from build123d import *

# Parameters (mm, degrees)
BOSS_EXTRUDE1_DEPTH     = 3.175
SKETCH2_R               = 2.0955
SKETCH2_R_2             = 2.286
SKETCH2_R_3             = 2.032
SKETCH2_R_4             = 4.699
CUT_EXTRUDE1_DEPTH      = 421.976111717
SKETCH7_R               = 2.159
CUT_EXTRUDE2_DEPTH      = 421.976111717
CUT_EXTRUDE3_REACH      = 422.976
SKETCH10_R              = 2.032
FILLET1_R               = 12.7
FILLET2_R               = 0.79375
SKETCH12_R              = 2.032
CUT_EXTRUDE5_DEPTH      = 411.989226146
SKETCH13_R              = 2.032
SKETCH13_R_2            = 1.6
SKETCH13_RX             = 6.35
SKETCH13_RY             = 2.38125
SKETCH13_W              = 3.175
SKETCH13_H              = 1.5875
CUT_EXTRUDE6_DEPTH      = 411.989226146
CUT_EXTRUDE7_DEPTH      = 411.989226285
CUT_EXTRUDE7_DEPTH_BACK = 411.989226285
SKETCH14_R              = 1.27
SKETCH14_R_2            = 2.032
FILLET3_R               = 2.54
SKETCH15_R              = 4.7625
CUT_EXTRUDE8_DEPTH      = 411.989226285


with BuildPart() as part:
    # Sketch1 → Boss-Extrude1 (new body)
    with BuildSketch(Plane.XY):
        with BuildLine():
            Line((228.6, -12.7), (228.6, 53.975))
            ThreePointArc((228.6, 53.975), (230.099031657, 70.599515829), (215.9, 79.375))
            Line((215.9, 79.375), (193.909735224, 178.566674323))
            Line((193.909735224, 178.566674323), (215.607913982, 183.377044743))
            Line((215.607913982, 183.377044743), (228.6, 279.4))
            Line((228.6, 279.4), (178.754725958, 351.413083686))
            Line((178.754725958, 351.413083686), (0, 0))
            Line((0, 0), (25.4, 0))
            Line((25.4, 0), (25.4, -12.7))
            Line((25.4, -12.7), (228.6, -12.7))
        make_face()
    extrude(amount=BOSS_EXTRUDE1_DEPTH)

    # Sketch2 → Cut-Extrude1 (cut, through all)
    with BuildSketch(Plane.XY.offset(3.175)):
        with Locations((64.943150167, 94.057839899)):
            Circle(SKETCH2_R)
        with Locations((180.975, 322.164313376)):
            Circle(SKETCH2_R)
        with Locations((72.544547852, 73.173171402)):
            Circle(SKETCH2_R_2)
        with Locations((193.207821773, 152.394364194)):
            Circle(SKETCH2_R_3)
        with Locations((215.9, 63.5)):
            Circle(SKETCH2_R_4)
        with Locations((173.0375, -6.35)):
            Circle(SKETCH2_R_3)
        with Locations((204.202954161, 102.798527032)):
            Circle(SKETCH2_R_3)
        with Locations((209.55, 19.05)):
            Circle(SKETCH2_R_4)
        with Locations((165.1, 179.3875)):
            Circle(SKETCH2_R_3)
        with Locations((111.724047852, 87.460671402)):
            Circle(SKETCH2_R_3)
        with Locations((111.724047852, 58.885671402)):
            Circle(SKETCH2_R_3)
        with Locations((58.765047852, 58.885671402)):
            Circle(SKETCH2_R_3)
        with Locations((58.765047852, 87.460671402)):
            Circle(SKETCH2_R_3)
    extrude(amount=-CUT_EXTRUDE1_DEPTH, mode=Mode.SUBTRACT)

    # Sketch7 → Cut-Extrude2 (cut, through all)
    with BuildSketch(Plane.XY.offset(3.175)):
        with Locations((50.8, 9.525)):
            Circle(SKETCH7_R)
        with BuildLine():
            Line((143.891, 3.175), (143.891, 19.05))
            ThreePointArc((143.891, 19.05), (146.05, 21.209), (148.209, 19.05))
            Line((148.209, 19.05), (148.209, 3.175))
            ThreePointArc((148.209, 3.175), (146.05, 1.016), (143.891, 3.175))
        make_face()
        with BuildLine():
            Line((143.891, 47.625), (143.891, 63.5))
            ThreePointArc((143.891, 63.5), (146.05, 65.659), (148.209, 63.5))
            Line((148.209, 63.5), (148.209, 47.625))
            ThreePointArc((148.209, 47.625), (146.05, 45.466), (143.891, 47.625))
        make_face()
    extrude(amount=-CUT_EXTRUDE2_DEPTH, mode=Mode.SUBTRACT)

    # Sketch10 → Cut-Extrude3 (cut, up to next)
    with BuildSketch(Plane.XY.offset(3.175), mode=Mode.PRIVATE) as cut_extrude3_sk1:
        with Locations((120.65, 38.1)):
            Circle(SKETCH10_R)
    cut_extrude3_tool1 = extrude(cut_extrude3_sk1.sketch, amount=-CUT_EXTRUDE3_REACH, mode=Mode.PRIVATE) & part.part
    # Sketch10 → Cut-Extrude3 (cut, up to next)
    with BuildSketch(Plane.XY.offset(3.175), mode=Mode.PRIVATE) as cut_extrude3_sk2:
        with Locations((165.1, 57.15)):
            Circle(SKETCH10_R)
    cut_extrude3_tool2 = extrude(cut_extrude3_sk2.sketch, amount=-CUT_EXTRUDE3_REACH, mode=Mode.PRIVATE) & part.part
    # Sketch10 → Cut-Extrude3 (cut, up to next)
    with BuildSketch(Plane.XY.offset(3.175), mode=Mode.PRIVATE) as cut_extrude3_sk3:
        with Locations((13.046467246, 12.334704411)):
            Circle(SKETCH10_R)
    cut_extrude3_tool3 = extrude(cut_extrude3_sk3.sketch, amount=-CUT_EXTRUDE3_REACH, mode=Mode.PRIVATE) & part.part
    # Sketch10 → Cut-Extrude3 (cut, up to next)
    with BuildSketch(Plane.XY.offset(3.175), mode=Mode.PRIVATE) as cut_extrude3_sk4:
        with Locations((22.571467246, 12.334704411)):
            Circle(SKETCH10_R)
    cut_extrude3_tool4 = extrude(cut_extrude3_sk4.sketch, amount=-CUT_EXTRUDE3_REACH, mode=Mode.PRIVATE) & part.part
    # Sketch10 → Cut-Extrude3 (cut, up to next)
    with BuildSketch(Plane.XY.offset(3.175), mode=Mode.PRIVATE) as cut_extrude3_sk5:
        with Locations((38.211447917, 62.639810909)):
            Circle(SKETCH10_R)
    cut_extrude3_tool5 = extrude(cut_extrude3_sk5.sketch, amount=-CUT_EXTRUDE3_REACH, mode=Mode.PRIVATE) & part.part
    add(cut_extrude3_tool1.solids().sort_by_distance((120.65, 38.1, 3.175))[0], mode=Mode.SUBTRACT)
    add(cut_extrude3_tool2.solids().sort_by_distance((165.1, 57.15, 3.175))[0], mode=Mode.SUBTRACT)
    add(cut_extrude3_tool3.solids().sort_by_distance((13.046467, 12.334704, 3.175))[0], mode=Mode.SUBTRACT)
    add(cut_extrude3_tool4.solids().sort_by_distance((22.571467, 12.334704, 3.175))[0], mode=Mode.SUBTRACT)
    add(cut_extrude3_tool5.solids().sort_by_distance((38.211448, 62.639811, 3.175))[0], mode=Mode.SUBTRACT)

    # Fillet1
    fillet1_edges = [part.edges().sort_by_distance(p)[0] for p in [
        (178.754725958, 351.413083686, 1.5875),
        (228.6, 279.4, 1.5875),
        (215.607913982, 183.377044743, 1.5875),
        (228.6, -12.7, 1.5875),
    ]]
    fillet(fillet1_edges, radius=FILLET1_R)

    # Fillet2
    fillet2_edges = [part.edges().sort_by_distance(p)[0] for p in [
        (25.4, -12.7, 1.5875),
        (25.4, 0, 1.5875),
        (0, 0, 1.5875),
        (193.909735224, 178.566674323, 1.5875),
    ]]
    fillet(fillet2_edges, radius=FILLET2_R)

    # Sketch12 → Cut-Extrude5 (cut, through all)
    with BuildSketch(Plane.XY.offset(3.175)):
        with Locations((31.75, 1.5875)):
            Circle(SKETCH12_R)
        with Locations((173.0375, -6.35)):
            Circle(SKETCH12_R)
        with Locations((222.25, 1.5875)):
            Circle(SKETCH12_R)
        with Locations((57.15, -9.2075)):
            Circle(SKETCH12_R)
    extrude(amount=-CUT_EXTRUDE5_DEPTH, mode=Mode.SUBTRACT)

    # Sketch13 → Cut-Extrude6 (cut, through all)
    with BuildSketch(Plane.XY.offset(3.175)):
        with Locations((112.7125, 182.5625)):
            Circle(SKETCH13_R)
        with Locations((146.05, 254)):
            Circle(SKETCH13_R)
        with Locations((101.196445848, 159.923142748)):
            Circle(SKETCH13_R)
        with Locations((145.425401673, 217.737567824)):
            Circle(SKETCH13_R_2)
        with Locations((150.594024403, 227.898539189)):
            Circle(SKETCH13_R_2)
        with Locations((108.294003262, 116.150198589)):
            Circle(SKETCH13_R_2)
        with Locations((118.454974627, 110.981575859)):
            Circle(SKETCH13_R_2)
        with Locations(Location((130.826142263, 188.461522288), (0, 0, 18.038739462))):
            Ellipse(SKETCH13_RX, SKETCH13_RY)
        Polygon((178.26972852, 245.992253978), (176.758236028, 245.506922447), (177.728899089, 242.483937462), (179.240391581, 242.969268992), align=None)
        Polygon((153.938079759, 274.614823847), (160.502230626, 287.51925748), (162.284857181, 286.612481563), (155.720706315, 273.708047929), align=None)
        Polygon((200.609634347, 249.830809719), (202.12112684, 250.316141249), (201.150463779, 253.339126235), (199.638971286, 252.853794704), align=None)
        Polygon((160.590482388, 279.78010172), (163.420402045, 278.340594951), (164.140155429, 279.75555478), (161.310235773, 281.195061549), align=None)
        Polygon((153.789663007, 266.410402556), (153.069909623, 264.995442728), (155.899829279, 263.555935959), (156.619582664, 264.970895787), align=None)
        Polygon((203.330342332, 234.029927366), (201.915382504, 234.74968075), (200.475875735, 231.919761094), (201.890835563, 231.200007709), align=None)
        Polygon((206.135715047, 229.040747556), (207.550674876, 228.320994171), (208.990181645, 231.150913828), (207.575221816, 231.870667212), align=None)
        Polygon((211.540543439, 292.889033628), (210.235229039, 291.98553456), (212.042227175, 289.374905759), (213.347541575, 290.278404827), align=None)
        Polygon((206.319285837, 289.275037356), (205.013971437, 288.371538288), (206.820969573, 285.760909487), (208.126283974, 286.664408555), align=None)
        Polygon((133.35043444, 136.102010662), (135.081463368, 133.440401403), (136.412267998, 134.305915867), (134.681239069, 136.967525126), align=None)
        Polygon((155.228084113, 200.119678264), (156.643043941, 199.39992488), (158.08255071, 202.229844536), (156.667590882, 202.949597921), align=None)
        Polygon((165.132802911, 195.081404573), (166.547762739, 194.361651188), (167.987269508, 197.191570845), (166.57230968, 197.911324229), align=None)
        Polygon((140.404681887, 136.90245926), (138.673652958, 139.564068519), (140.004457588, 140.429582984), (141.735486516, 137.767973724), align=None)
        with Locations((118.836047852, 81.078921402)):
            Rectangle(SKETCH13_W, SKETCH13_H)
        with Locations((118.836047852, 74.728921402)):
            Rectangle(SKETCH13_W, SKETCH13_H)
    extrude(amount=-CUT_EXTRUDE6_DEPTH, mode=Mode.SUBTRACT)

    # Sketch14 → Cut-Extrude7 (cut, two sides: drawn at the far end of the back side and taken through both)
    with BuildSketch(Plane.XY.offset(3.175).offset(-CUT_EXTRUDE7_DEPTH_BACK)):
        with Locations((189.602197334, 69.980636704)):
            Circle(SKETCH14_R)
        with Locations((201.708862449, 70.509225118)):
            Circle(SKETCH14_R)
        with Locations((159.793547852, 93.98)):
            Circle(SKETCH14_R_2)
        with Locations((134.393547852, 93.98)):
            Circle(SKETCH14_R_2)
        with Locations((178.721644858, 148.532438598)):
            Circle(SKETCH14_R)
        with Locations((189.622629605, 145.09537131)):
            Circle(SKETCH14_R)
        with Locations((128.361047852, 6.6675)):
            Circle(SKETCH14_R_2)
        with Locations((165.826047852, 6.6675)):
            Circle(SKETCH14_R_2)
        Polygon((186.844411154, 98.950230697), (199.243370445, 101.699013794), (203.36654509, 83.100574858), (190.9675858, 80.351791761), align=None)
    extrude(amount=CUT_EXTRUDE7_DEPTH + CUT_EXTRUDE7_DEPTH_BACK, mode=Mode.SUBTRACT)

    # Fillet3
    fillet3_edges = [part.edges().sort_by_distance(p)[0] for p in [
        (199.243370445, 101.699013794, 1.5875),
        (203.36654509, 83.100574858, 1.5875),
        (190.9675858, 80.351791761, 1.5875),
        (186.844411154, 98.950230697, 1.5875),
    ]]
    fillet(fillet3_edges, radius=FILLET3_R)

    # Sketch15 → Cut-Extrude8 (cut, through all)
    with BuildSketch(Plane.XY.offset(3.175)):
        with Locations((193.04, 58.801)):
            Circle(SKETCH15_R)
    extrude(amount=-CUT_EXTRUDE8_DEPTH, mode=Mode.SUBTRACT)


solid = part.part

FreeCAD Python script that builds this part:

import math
import FreeCAD as App
import Part
import Sketcher
from FreeCAD import Vector
Q = App.Units.Quantity


def edges_at(feature, points):
    """Names of the edges that pass closest to the given points."""
    edges = feature.Shape.Edges
    near = lambda p: min(range(len(edges)), key=lambda i: edges[i].distToShape(Part.Vertex(*p))[0])
    return sorted({f"Edge{near(p) + 1}" for p in points})

doc = App.newDocument("Part")
body = doc.addObject("PartDesign::Body", "Body")

sketch1 = doc.addObject("Sketcher::SketchObject", "Sketch")
body.addObject(sketch1)
sketch1.AttachmentSupport = (doc.XY_Plane, [""])
sketch1.MapMode = "FlatFace"
sketch1.addGeometry([
    Part.LineSegment(Vector(228.6, -12.7, 0), Vector(228.6, 53.975, 0)),
    Part.ArcOfCircle(Part.Circle(Vector(215.9, 63.5, 0), Vector(0, 0, 1), 15.875), math.radians(-36.869898), math.radians(90)),
    Part.LineSegment(Vector(215.9, 79.375, 0), Vector(193.909735, 178.566674, 0)),
    Part.LineSegment(Vector(193.909735, 178.566674, 0), Vector(215.607914, 183.377045, 0)),
    Part.LineSegment(Vector(215.607914, 183.377045, 0), Vector(228.6, 279.4, 0)),
    Part.LineSegment(Vector(228.6, 279.4, 0), Vector(178.754726, 351.413084, 0)),
    Part.LineSegment(Vector(178.754726, 351.413084, 0), Vector(0, 0, 0)),
    Part.LineSegment(Vector(0, 0, 0), Vector(25.4, 0, 0)),
    Part.LineSegment(Vector(25.4, 0, 0), Vector(25.4, -12.7, 0)),
    Part.LineSegment(Vector(25.4, -12.7, 0), Vector(228.6, -12.7, 0)),
], False)
sketch1.addConstraint([
    Sketcher.Constraint("Coincident", 0, 2, 1, 1),
    Sketcher.Constraint("Coincident", 1, 2, 2, 1),
    Sketcher.Constraint("Coincident", 2, 2, 3, 1),
    Sketcher.Constraint("Coincident", 3, 2, 4, 1),
    Sketcher.Constraint("Coincident", 4, 2, 5, 1),
    Sketcher.Constraint("Coincident", 5, 2, 6, 1),
    Sketcher.Constraint("Coincident", 6, 2, 7, 1),
    Sketcher.Constraint("Coincident", 7, 2, 8, 1),
    Sketcher.Constraint("Coincident", 8, 2, 9, 1),
    Sketcher.Constraint("Coincident", 9, 2, 0, 1),
    Sketcher.Constraint("Vertical", 0),
    Sketcher.Constraint("Horizontal", 7),
    Sketcher.Constraint("Vertical", 8),
    Sketcher.Constraint("Horizontal", 9),
    Sketcher.Constraint("Coincident", 6, 2, -1, 1),
    Sketcher.Constraint("Perpendicular", 2, 3),
    Sketcher.Constraint("Vertical", 0, 2, 4, 2),
    Sketcher.Constraint("DistanceX", 7, 1, 7, 2, Q("1 in")),
    Sketcher.Constraint("DistanceX", 9, 1, 9, 2, Q("8 in")),
    Sketcher.Constraint("Distance", 2, Q("4 in")),
    Sketcher.Constraint("DistanceY", 8, 2, 8, 1, Q("0.5 in")),
    Sketcher.Constraint("DistanceY", -1, 1, 4, 2, Q("11 in")),
    Sketcher.Constraint("Radius", 1, Q("0.625 in")),
    Sketcher.Constraint("DistanceY", 0, 2, 1, 2, Q("1 in")),
    Sketcher.Constraint("DistanceY", 8, 2, 1, 3, Q("3 in")),
    Sketcher.Constraint("DistanceX", -1, 1, 1, 2, Q("8.5 in")),
    Sketcher.Constraint("Angle", 2, Q("102.5 deg")),
    Sketcher.Constraint("Distance", 3, Q("0.875 in")),
    Sketcher.Constraint("DistanceX", 5, 2, 3, 2, Q("36.853188 mm")),
    Sketcher.Constraint("DistanceY", 3, 2, 5, 2, Q("168.036039 mm")),
])
pad1 = doc.addObject("PartDesign::Pad", "Pad")
body.addObject(pad1)
pad1.Profile = sketch1
pad1.Length = Q("0.125 in")

sketch2 = doc.addObject("Sketcher::SketchObject", "Sketch001")
body.addObject(sketch2)
sketch2.AttachmentSupport = (doc.XY_Plane, [""])
sketch2.MapMode = "FlatFace"
sketch2.AttachmentOffset = App.Placement(Vector(0, 0, 0.125 * 25.4), App.Rotation())
sketch2.addGeometry([
    Part.Circle(Vector(64.94315, 94.05784, 0), Vector(0, 0, 1), 2.0955),
    Part.Circle(Vector(180.975, 322.164313, 0), Vector(0, 0, 1), 2.0955),
    Part.Circle(Vector(72.544548, 73.173171, 0), Vector(0, 0, 1), 2.286),
    Part.Circle(Vector(193.207822, 152.394364, 0), Vector(0, 0, 1), 2.032),
    Part.Circle(Vector(215.9, 63.5, 0), Vector(0, 0, 1), 4.699),
    Part.Circle(Vector(173.0375, -6.35, 0), Vector(0, 0, 1), 2.032),
    Part.Circle(Vector(204.202954, 102.798527, 0), Vector(0, 0, 1), 2.032),
    Part.Circle(Vector(209.55, 19.05, 0), Vector(0, 0, 1), 4.699),
    Part.Circle(Vector(165.1, 179.3875, 0), Vector(0, 0, 1), 2.032),
    Part.Circle(Vector(111.724048, 87.460671, 0), Vector(0, 0, 1), 2.032),
    Part.Circle(Vector(111.724048, 58.885671, 0), Vector(0, 0, 1), 2.032),
    Part.Circle(Vector(58.765048, 58.885671, 0), Vector(0, 0, 1), 2.032),
    Part.Circle(Vector(58.765048, 87.460671, 0), Vector(0, 0, 1), 2.032),
], False)
sketch2.addConstraint([
    Sketcher.Constraint("Equal", 0, 1),
    Sketcher.Constraint("Equal", 3, 5),
    Sketcher.Constraint("Equal", 5, 6),
    Sketcher.Constraint("Equal", 4, 7),
    Sketcher.Constraint("Equal", 6, 8),
    Sketcher.Constraint("Equal", 8, 9),
    Sketcher.Constraint("Equal", 9, 10),
    Sketcher.Constraint("Equal", 10, 11),
    Sketcher.Constraint("Equal", 11, 12),
    Sketcher.Constraint("Horizontal", 10, 3, 11, 3),
    Sketcher.Constraint("Horizontal", 9, 3, 12, 3),
    Sketcher.Constraint("Vertical", 9, 3, 10, 3),
    Sketcher.Constraint("Vertical", 11, 3, 12, 3),
    Sketcher.Constraint("Diameter", 2, Q("0.18 in")),
    Sketcher.Constraint("Diameter", 3, Q("0.16 in")),
    Sketcher.Constraint("Diameter", 4, Q("0.37 in")),
    Sketcher.Constraint("Diameter", 0, Q("0.165 in")),
    Sketcher.Constraint("DistanceY", 5, 3, 7, 3, Q("1 in")),
    Sketcher.Constraint("DistanceX", 8, 3, 4, 3, Q("2 in")),
    Sketcher.Constraint("DistanceX", -1, 1, 4, 3, Q("8.5 in")),
    Sketcher.Constraint("DistanceY", -1, 1, 4, 3, Q("2.5 in")),
    Sketcher.Constraint("DistanceY", 5, 3, -1, 1, Q("0.25 in")),
    Sketcher.Constraint("DistanceX", -1, 1, 7, 3, Q("8.25 in")),
    Sketcher.Constraint("DistanceX", -1, 1, 1, 3, Q("7.125 in")),
    Sketcher.Constraint("DistanceX", -1, 1, 5, 3, Q("6.8125 in")),
    Sketcher.Constraint("DistanceY", -1, 1, 8, 3, Q("7.0625 in")),
    Sketcher.Constraint("DistanceY", 2, 3, 9, 3, Q("0.5625 in")),
    Sketcher.Constraint("DistanceY", 10, 3, 9, 3, Q("1.125 in")),
    Sketcher.Constraint("DistanceX", 11, 3, 10, 3, Q("2.085 in")),
    Sketcher.Constraint("DistanceX", 2, 3, 9, 3, Q("1.5425 in")),
    Sketcher.Constraint("DistanceX", -1, 1, 0, 3, Q("64.94315 mm")),
    Sketcher.Constraint("DistanceY", -1, 1, 0, 3, Q("94.05784 mm")),
    Sketcher.Constraint("DistanceY", -1, 1, 2, 3, Q("73.173171 mm")),
    Sketcher.Constraint("DistanceX", -1, 1, 3, 3, Q("193.207822 mm")),
    Sketcher.Constraint("DistanceY", 2, 3, 1, 3, Q("248.991142 mm")),
    Sketcher.Constraint("DistanceY", 3, 3, 1, 3, Q("169.769949 mm")),
    Sketcher.Constraint("DistanceX", -1, 1, 2, 3, Q("72.544548 mm")),
    Sketcher.Constraint("DistanceX", -1, 1, 6, 3, Q("204.202954 mm")),
    Sketcher.Constraint("DistanceY", -1, 1, 6, 3, Q("102.798527 mm")),
])
pocket1 = doc.addObject("PartDesign::Pocket", "Pocket")
body.addObject(pocket1)
pocket1.Profile = sketch2
pocket1.Type = "ThroughAll"

sketch3 = doc.addObject("Sketcher::SketchObject", "Sketch002")
body.addObject(sketch3)
sketch3.AttachmentSupport = (doc.XY_Plane, [""])
sketch3.MapMode = "FlatFace"
sketch3.AttachmentOffset = App.Placement(Vector(0, 0, 0.125 * 25.4), App.Rotation())
sketch3.addGeometry([
    Part.Circle(Vector(50.8, 9.525, 0), Vector(0, 0, 1), 2.159),
    Part.LineSegment(Vector(143.891, 19.05, 0), Vector(143.891, 3.175, 0)),
    Part.ArcOfCircle(Part.Circle(Vector(146.05, 3.175, 0), Vector(0, 0, 1), 2.159), math.radians(180), math.radians(360)),
    Part.LineSegment(Vector(148.209, 3.175, 0), Vector(148.209, 19.05, 0)),
    Part.ArcOfCircle(Part.Circle(Vector(146.05, 19.05, 0), Vector(0, 0, 1), 2.159), math.radians(0), math.radians(180)),
    Part.LineSegment(Vector(143.891, 63.5, 0), Vector(143.891, 47.625, 0)),
    Part.ArcOfCircle(Part.Circle(Vector(146.05, 47.625, 0), Vector(0, 0, 1), 2.159), math.radians(180), math.radians(360)),
    Part.LineSegment(Vector(148.209, 47.625, 0), Vector(148.209, 63.5, 0)),
    Part.ArcOfCircle(Part.Circle(Vector(146.05, 63.5, 0), Vector(0, 0, 1), 2.159), math.radians(0), math.radians(180)),
], False)
sketch3.addConstraint([
    Sketcher.Constraint("Tangent", 1, 2, 2, 1),
    Sketcher.Constraint("Tangent", 2, 2, 3, 1),
    Sketcher.Constraint("Tangent", 3, 2, 4, 1),
    Sketcher.Constraint("Tangent", 4, 2, 1, 1),
    Sketcher.Constraint("Tangent", 5, 2, 6, 1),
    Sketcher.Constraint("Tangent", 6, 2, 7, 1),
    Sketcher.Constraint("Tangent", 7, 2, 8, 1),
    Sketcher.Constraint("Tangent", 8, 2, 5, 1),
    Sketcher.Constraint("Vertical", 1),
    Sketcher.Constraint("Vertical", 3),
    Sketcher.Constraint("Vertical", 5),
    Sketcher.Constraint("Vertical", 7),
    Sketcher.Constraint("Equal", 0, 2),
    Sketcher.Constraint("Equal", 4, 6),
    Sketcher.Constraint("Vertical", 4, 3, 6, 3),
    Sketcher.Constraint("Equal", 3, 5),
    Sketcher.Constraint("Diameter", 0, Q("0.17 in")),
    Sketcher.Constraint("DistanceX", -1, 1, 0, 3, Q("2 in")),
    Sketcher.Constraint("DistanceY", -1, 1, 8, 3, Q("2.5 in")),
    Sketcher.Constraint("DistanceY", 0, 3, 6, 3, Q("1.5 in")),
    Sketcher.Constraint("DistanceY", 1, 2, 1, 1, Q("0.625 in")),
    Sketcher.Constraint("DistanceX", -1, 1, 2, 3, Q("5.75 in")),
    Sketcher.Constraint("DistanceY", -1, 1, 4, 3, Q("0.75 in")),
])
pocket2 = doc.addObject("PartDesign::Pocket", "Pocket001")
body.addObject(pocket2)
pocket2.Profile = sketch3
pocket2.Type = "ThroughAll"

sketch4 = doc.addObject("Sketcher::SketchObject", "Sketch003")
body.addObject(sketch4)
sketch4.AttachmentSupport = (doc.XY_Plane, [""])
sketch4.MapMode = "FlatFace"
sketch4.AttachmentOffset = App.Placement(Vector(0, 0, 0.125 * 25.4), App.Rotation())
sketch4.addGeometry(Part.Circle(Vector(120.65, 38.1, 0), Vector(0, 0, 1), 2.032), False)
sketch4.addConstraint([
    Sketcher.Constraint("Diameter", 0, Q("0.16 in")),
    Sketcher.Constraint("DistanceY", -1, 1, 0, 3, Q("1.5 in")),
    Sketcher.Constraint("DistanceX", -1, 1, 0, 3, Q("4.75 in")),
])
pocket3 = doc.addObject("PartDesign::Pocket", "Pocket002")
body.addObject(pocket3)
pocket3.Profile = sketch4
pocket3.Type = "UpToFirst"

sketch5 = doc.addObject("Sketcher::SketchObject", "Sketch004")
body.addObject(sketch5)
sketch5.AttachmentSupport = (doc.XY_Plane, [""])
sketch5.MapMode = "FlatFace"
sketch5.AttachmentOffset = App.Placement(Vector(0, 0, 0.125 * 25.4), App.Rotation())
sketch5.addGeometry(Part.Circle(Vector(165.1, 57.15, 0), Vector(0, 0, 1), 2.032), False)
sketch5.addConstraint([
    Sketcher.Constraint("Diameter", 0, Q("0.16 in")),
    Sketcher.Constraint("DistanceX", -1, 1, 0, 3, Q("6.5 in")),
    Sketcher.Constraint("DistanceY", -1, 1, 0, 3, Q("2.25 in")),
])
pocket4 = doc.addObject("PartDesign::Pocket", "Pocket003")
body.addObject(pocket4)
pocket4.Profile = sketch5
pocket4.Type = "UpToFirst"

sketch6 = doc.addObject("Sketcher::SketchObject", "Sketch005")
body.addObject(sketch6)
sketch6.AttachmentSupport = (doc.XY_Plane, [""])
sketch6.MapMode = "FlatFace"
sketch6.AttachmentOffset = App.Placement(Vector(0, 0, 0.125 * 25.4), App.Rotation())
sketch6.addGeometry(Part.Circle(Vector(13.046467, 12.334704, 0), Vector(0, 0, 1), 2.032), False)
sketch6.addConstraint([
    Sketcher.Constraint("Diameter", 0, Q("0.16 in")),
    Sketcher.Constraint("DistanceX", -1, 1, 0, 3, Q("13.046467 mm")),
    Sketcher.Constraint("DistanceY", -1, 1, 0, 3, Q("12.334704 mm")),
])
pocket5 = doc.addObject("PartDesign::Pocket", "Pocket004")
body.addObject(pocket5)
pocket5.Profile = sketch6
pocket5.Type = "UpToFirst"

sketch7 = doc.addObject("Sketcher::SketchObject", "Sketch006")
body.addObject(sketch7)
sketch7.AttachmentSupport = (doc.XY_Plane, [""])
sketch7.MapMode = "FlatFace"
sketch7.AttachmentOffset = App.Placement(Vector(0, 0, 0.125 * 25.4), App.Rotation())
sketch7.addGeometry(Part.Circle(Vector(22.571467, 12.334704, 0), Vector(0, 0, 1), 2.032), False)
sketch7.addConstraint([
    Sketcher.Constraint("Diameter", 0, Q("0.16 in")),
    Sketcher.Constraint("DistanceX", -1, 1, 0, 3, Q("22.571467 mm")),
    Sketcher.Constraint("DistanceY", -1, 1, 0, 3, Q("12.334704 mm")),
])
pocket6 = doc.addObject("PartDesign::Pocket", "Pocket005")
body.addObject(pocket6)
pocket6.Profile = sketch7
pocket6.Type = "UpToFirst"

sketch8 = doc.addObject("Sketcher::SketchObject", "Sketch007")
body.addObject(sketch8)
sketch8.AttachmentSupport = (doc.XY_Plane, [""])
sketch8.MapMode = "FlatFace"
sketch8.AttachmentOffset = App.Placement(Vector(0, 0, 0.125 * 25.4), App.Rotation())
sketch8.addGeometry(Part.Circle(Vector(38.211448, 62.639811, 0), Vector(0, 0, 1), 2.032), False)
sketch8.addConstraint([
    Sketcher.Constraint("Diameter", 0, Q("0.16 in")),
    Sketcher.Constraint("DistanceY", -1, 1, 0, 3, Q("62.639811 mm")),
    Sketcher.Constraint("DistanceX", -1, 1, 0, 3, Q("38.211448 mm")),
])
pocket7 = doc.addObject("PartDesign::Pocket", "Pocket006")
body.addObject(pocket7)
pocket7.Profile = sketch8
pocket7.Type = "UpToFirst"
doc.recompute()

fillet = doc.addObject("PartDesign::Fillet", "Fillet")
body.addObject(fillet)
fillet.Base = (pocket7, edges_at(pocket7, [
    (178.755, 351.413, 1.587),
    (228.6, 279.4, 1.587),
    (215.608, 183.377, 1.587),
    (228.6, -12.7, 1.587),
]))
fillet.Radius = Q("0.5 in")
doc.recompute()

fillet2 = doc.addObject("PartDesign::Fillet", "Fillet001")
body.addObject(fillet2)
fillet2.Base = (fillet, edges_at(fillet, [
    (25.4, -12.7, 1.587),
    (25.4, 0, 1.587),
    (0, 0, 1.587),
    (193.91, 178.567, 1.587),
]))
fillet2.Radius = Q("0.03125 in")

sketch9 = doc.addObject("Sketcher::SketchObject", "Sketch008")
body.addObject(sketch9)
sketch9.AttachmentSupport = (doc.XY_Plane, [""])
sketch9.MapMode = "FlatFace"
sketch9.AttachmentOffset = App.Placement(Vector(0, 0, 0.125 * 25.4), App.Rotation())
sketch9.addGeometry([
    Part.Circle(Vector(31.75, 1.5875, 0), Vector(0, 0, 1), 2.032),
    Part.Circle(Vector(173.0375, -6.35, 0), Vector(0, 0, 1), 2.032),
    Part.Circle(Vector(222.25, 1.5875, 0), Vector(0, 0, 1), 2.032),
    Part.Circle(Vector(57.15, -9.2075, 0), Vector(0, 0, 1), 2.032),
], False)
sketch9.addConstraint([
    Sketcher.Constraint("Equal", 0, 1),
    Sketcher.Constraint("Equal", 1, 2),
    Sketcher.Constraint("Equal", 2, 3),
    Sketcher.Constraint("Horizontal", 0, 3, 2, 3),
    Sketcher.Constraint("Diameter", 0, Q("0.16 in")),
    Sketcher.Constraint("DistanceX", 0, 3, 3, 3, Q("1 in")),
    Sketcher.Constraint("DistanceX", 0, 3, 2, 3, Q("7.5 in")),
    Sketcher.Constraint("DistanceX", -1, 1, 0, 3, Q("1.25 in")),
    Sketcher.Constraint("DistanceY", 1, 3, -1, 1, Q("0.25 in")),
    Sketcher.Constraint("DistanceY", -1, 1, 0, 3, Q("0.0625 in")),
    Sketcher.Constraint("DistanceX", -1, 1, 1, 3, Q("6.8125 in")),
    Sketcher.Constraint("DistanceY", 3, 3, 0, 3, Q("0.425 in")),
])
pocket8 = doc.addObject("PartDesign::Pocket", "Pocket007")
body.addObject(pocket8)
pocket8.Profile = sketch9
pocket8.Type = "ThroughAll"

sketch10 = doc.addObject("Sketcher::SketchObject", "Sketch009")
body.addObject(sketch10)
sketch10.AttachmentSupport = (doc.XY_Plane, [""])
sketch10.MapMode = "FlatFace"
sketch10.AttachmentOffset = App.Placement(Vector(0, 0, 0.125 * 25.4), App.Rotation())
sketch10.addGeometry([
    Part.Circle(Vector(112.7125, 182.5625, 0), Vector(0, 0, 1), 2.032),
    Part.Circle(Vector(146.05, 254, 0), Vector(0, 0, 1), 2.032),
    Part.Circle(Vector(101.196446, 159.923143, 0), Vector(0, 0, 1), 2.032),
    Part.Circle(Vector(145.425402, 217.737568, 0), Vector(0, 0, 1), 1.6),
    Part.Circle(Vector(150.594024, 227.898539, 0), Vector(0, 0, 1), 1.6),
    Part.Circle(Vector(108.294003, 116.150199, 0), Vector(0, 0, 1), 1.6),
    Part.Circle(Vector(118.454975, 110.981576, 0), Vector(0, 0, 1), 1.6),
    Part.Ellipse(Vector(136.864023, 190.427863, 0), Vector(130.088764, 190.725728, 0), Vector(130.826142, 188.461522, 0)),
    Part.LineSegment(Vector(178.269729, 245.992254, 0), Vector(176.758236, 245.506922, 0)),
    Part.LineSegment(Vector(176.758236, 245.506922, 0), Vector(177.728899, 242.483937, 0)),
    Part.LineSegment(Vector(177.728899, 242.483937, 0), Vector(179.240392, 242.969269, 0)),
    Part.LineSegment(Vector(179.240392, 242.969269, 0), Vector(178.269729, 245.992254, 0)),
    Part.LineSegment(Vector(160.502231, 287.519257, 0), Vector(153.93808, 274.614824, 0)),
    Part.LineSegment(Vector(153.93808, 274.614824, 0), Vector(155.720706, 273.708048, 0)),
    Part.LineSegment(Vector(155.720706, 273.708048, 0), Vector(162.284857, 286.612482, 0)),
    Part.LineSegment(Vector(162.284857, 286.612482, 0), Vector(160.502231, 287.519257, 0)),
    Part.LineSegment(Vector(200.609634, 249.83081, 0), Vector(202.121127, 250.316141, 0)),
    Part.LineSegment(Vector(202.121127, 250.316141, 0), Vector(201.150464, 253.339126, 0)),
    Part.LineSegment(Vector(201.150464, 253.339126, 0), Vector(199.638971, 252.853795, 0)),
    Part.LineSegment(Vector(199.638971, 252.853795, 0), Vector(200.609634, 249.83081, 0)),
    Part.LineSegment(Vector(160.590482, 279.780102, 0), Vector(163.420402, 278.340595, 0)),
    Part.LineSegment(Vector(163.420402, 278.340595, 0), Vector(164.140155, 279.755555, 0)),
    Part.LineSegment(Vector(164.140155, 279.755555, 0), Vector(161.310236, 281.195062, 0)),
    Part.LineSegment(Vector(161.310236, 281.195062, 0), Vector(160.590482, 279.780102, 0)),
    Part.LineSegment(Vector(153.789663, 266.410403, 0), Vector(153.06991, 264.995443, 0)),
    Part.LineSegment(Vector(153.06991, 264.995443, 0), Vector(155.899829, 263.555936, 0)),
    Part.LineSegment(Vector(155.899829, 263.555936, 0), Vector(156.619583, 264.970896, 0)),
    Part.LineSegment(Vector(156.619583, 264.970896, 0), Vector(153.789663, 266.410403, 0)),
    Part.LineSegment(Vector(203.330342, 234.029927, 0), Vector(201.915383, 234.749681, 0)),
    Part.LineSegment(Vector(201.915383, 234.749681, 0), Vector(200.475876, 231.919761, 0)),
    Part.LineSegment(Vector(200.475876, 231.919761, 0), Vector(201.890836, 231.200008, 0)),
    Part.LineSegment(Vector(201.890836, 231.200008, 0), Vector(203.330342, 234.029927, 0)),
    Part.LineSegment(Vector(206.135715, 229.040748, 0), Vector(207.550675, 228.320994, 0)),
    Part.LineSegment(Vector(207.550675, 228.320994, 0), Vector(208.990182, 231.150914, 0)),
    Part.LineSegment(Vector(208.990182, 231.150914, 0), Vector(207.575222, 231.870667, 0)),
    Part.LineSegment(Vector(207.575222, 231.870667, 0), Vector(206.135715, 229.040748, 0)),
    Part.LineSegment(Vector(211.540543, 292.889034, 0), Vector(210.235229, 291.985535, 0)),
    Part.LineSegment(Vector(210.235229, 291.985535, 0), Vector(212.042227, 289.374906, 0)),
    Part.LineSegment(Vector(212.042227, 289.374906, 0), Vector(213.347542, 290.278405, 0)),
    Part.LineSegment(Vector(213.347542, 290.278405, 0), Vector(211.540543, 292.889034, 0)),
    Part.LineSegment(Vector(206.319286, 289.275037, 0), Vector(205.013971, 288.371538, 0)),
    Part.LineSegment(Vector(205.013971, 288.371538, 0), Vector(206.82097, 285.760909, 0)),
    Part.LineSegment(Vector(206.82097, 285.760909, 0), Vector(208.126284, 286.664409, 0)),
    Part.LineSegment(Vector(208.126284, 286.664409, 0), Vector(206.319286, 289.275037, 0)),
    Part.LineSegment(Vector(133.350434, 136.102011, 0), Vector(135.081463, 133.440401, 0)),
    Part.LineSegment(Vector(135.081463, 133.440401, 0), Vector(136.412268, 134.305916, 0)),
    Part.LineSegment(Vector(136.412268, 134.305916, 0), Vector(134.681239, 136.967525, 0)),
    Part.LineSegment(Vector(134.681239, 136.967525, 0), Vector(133.350434, 136.102011, 0)),
    Part.LineSegment(Vector(155.228084, 200.119678, 0), Vector(156.643044, 199.399925, 0)),
    Part.LineSegment(Vector(156.643044, 199.399925, 0), Vector(158.082551, 202.229845, 0)),
    Part.LineSegment(Vector(158.082551, 202.229845, 0), Vector(156.667591, 202.949598, 0)),
    Part.LineSegment(Vector(156.667591, 202.949598, 0), Vector(155.228084, 200.119678, 0)),
    Part.LineSegment(Vector(165.132803, 195.081405, 0), Vector(166.547763, 194.361651, 0)),
    Part.LineSegment(Vector(166.547763, 194.361651, 0), Vector(167.98727, 197.191571, 0)),
    Part.LineSegment(Vector(167.98727, 197.191571, 0), Vector(166.57231, 197.911324, 0)),
    Part.LineSegment(Vector(166.57231, 197.911324, 0), Vector(165.132803, 195.081405, 0)),
    Part.LineSegment(Vector(138.673653, 139.564069, 0), Vector(140.404682, 136.902459, 0)),
    Part.LineSegment(Vector(140.404682, 136.902459, 0), Vector(141.735487, 137.767974, 0)),
    Part.LineSegment(Vector(141.735487, 137.767974, 0), Vector(140.004458, 140.429583, 0)),
    Part.LineSegment(Vector(140.004458, 140.429583, 0), Vector(138.673653, 139.564069, 0)),
    Part.LineSegment(Vector(117.248548, 81.872671, 0), Vector(117.248548, 80.285171, 0)),
    Part.LineSegment(Vector(117.248548, 80.285171, 0), Vector(120.423548, 80.285171, 0)),
    Part.LineSegment(Vector(120.423548, 80.285171, 0), Vector(120.423548, 81.872671, 0)),
    Part.LineSegment(Vector(120.423548, 81.872671, 0), Vector(117.248548, 81.872671, 0)),
    Part.LineSegment(Vector(117.248548, 75.522671, 0), Vector(117.248548, 73.935171, 0)),
    Part.LineSegment(Vector(117.248548, 73.935171, 0), Vector(120.423548, 73.935171, 0)),
    Part.LineSegment(Vector(120.423548, 73.935171, 0), Vector(120.423548, 75.522671, 0)),
    Part.LineSegment(Vector(120.423548, 75.522671, 0), Vector(117.248548, 75.522671, 0)),
], False)
sketch10.addConstraint([
    Sketcher.Constraint("Block", 7),
    Sketcher.Constraint("Coincident", 8, 2, 9, 1),
    Sketcher.Constraint("Coincident", 9, 2, 10, 1),
    Sketcher.Constraint("Coincident", 10, 2, 11, 1),
    Sketcher.Constraint("Coincident", 11, 2, 8, 1),
    Sketcher.Constraint("Coincident", 12, 2, 13, 1),
    Sketcher.Constraint("Coincident", 13, 2, 14, 1),
    Sketcher.Constraint("Coincident", 14, 2, 15, 1),
    Sketcher.Constraint("Coincident", 15, 2, 12, 1),
    Sketcher.Constraint("Coincident", 16, 2, 17, 1),
    Sketcher.Constraint("Coincident", 17, 2, 18, 1),
    Sketcher.Constraint("Coincident", 18, 2, 19, 1),
    Sketcher.Constraint("Coincident", 19, 2, 16, 1),
    Sketcher.Constraint("Coincident", 20, 2, 21, 1),
    Sketcher.Constraint("Coincident", 21, 2, 22, 1),
    Sketcher.Constraint("Coincident", 22, 2, 23, 1),
    Sketcher.Constraint("Coincident", 23, 2, 20, 1),
    Sketcher.Constraint("Coincident", 24, 2, 25, 1),
    Sketcher.Constraint("Coincident", 25, 2, 26, 1),
    Sketcher.Constraint("Coincident", 26, 2, 27, 1),
    Sketcher.Constraint("Coincident", 27, 2, 24, 1),
    Sketcher.Constraint("Coincident", 28, 2, 29, 1),
    Sketcher.Constraint("Coincident", 29, 2, 30, 1),
    Sketcher.Constraint("Coincident", 30, 2, 31, 1),
    Sketcher.Constraint("Coincident", 31, 2, 28, 1),
    Sketcher.Constraint("Coincident", 32, 2, 33, 1),
    Sketcher.Constraint("Coincident", 33, 2, 34, 1),
    Sketcher.Constraint("Coincident", 34, 2, 35, 1),
    Sketcher.Constraint("Coincident", 35, 2, 32, 1),
    Sketcher.Constraint("Coincident", 36, 2, 37, 1),
    Sketcher.Constraint("Coincident", 37, 2, 38, 1),
    Sketcher.Constraint("Coincident", 38, 2, 39, 1),
    Sketcher.Constraint("Coincident", 39, 2, 36, 1),
    Sketcher.Constraint("Coincident", 40, 2, 41, 1),
    Sketcher.Constraint("Coincident", 41, 2, 42, 1),
    Sketcher.Constraint("Coincident", 42, 2, 43, 1),
    Sketcher.Constraint("Coincident", 43, 2, 40, 1),
    Sketcher.Constraint("Coincident", 44, 2, 45, 1),
    Sketcher.Constraint("Coincident", 45, 2, 46, 1),
    Sketcher.Constraint("Coincident", 46, 2, 47, 1),
    Sketcher.Constraint("Coincident", 47, 2, 44, 1),
    Sketcher.Constraint("Coincident", 48, 2, 49, 1),
    Sketcher.Constraint("Coincident", 49, 2, 50, 1),
    Sketcher.Constraint("Coincident", 50, 2, 51, 1),
    Sketcher.Constraint("Coincident", 51, 2, 48, 1),
    Sketcher.Constraint("Coincident", 52, 2, 53, 1),
    Sketcher.Constraint("Coincident", 53, 2, 54, 1),
    Sketcher.Constraint("Coincident", 54, 2, 55, 1),
    Sketcher.Constraint("Coincident", 55, 2, 52, 1),
    Sketcher.Constraint("Coincident", 56, 2, 57, 1),
    Sketcher.Constraint("Coincident", 57, 2, 58, 1),
    Sketcher.Constraint("Coincident", 58, 2, 59, 1),
    Sketcher.Constraint("Coincident", 59, 2, 56, 1),
    Sketcher.Constraint("Coincident", 60, 2, 61, 1),
    Sketcher.Constraint("Coincident", 61, 2, 62, 1),
    Sketcher.Constraint("Coincident", 62, 2, 63, 1),
    Sketcher.Constraint("Coincident", 63, 2, 60, 1),
    Sketcher.Constraint("Coincident", 64, 2, 65, 1),
    Sketcher.Constraint("Coincident", 65, 2, 66, 1),
    Sketcher.Constraint("Coincident", 66, 2, 67, 1),
    Sketcher.Constraint("Coincident", 67, 2, 64, 1),
    Sketcher.Constraint("Vertical", 60),
    Sketcher.Constraint("Horizontal", 61),
    Sketcher.Constraint("Vertical", 62),
    Sketcher.Constraint("Horizontal", 63),
    Sketcher.Constraint("Vertical", 64),
    Sketcher.Constraint("Horizontal", 65),
    Sketcher.Constraint("Vertical", 66),
    Sketcher.Constraint("Horizontal", 67),
    Sketcher.Constraint("Equal", 0, 1),
    Sketcher.Constraint("Equal", 1, 2),
    Sketcher.Constraint("Equal", 3, 4),
    Sketcher.Constraint("Equal", 4, 5),
    Sketcher.Constraint("Equal", 5, 6),
    Sketcher.Constraint("Perpendicular", 8, 9),
    Sketcher.Constraint("Perpendicular", 9, 10),
    Sketcher.Constraint("Perpendicular", 10, 11),
    Sketcher.Constraint("Perpendicular", 12, 13),
    Sketcher.Constraint("Perpendicular", 13, 14),
    Sketcher.Constraint("Perpendicular", 14, 15),
    Sketcher.Constraint("Perpendicular", 11, 16),
    Sketcher.Constraint("Perpendicular", 16, 17),
    Sketcher.Constraint("Perpendicular", 17, 18),
    Sketcher.Constraint("Perpendicular", 18, 19),
    Sketcher.Constraint("Parallel", 15, 20),
    Sketcher.Constraint("Perpendicular", 20, 21),
    Sketcher.Constraint("Perpendicular", 21, 22),
    Sketcher.Constraint("Perpendicular", 22, 23),
    Sketcher.Constraint("Parallel", 23, 24),
    Sketcher.Constraint("Perpendicular", 24, 25),
    Sketcher.Constraint("Perpendicular", 25, 26),
    Sketcher.Constraint("Perpendicular", 26, 27),
    Sketcher.Constraint("Parallel", 27, 28),
    Sketcher.Constraint("Perpendicular", 28, 29),
    Sketcher.Constraint("Perpendicular", 29, 30),
    Sketcher.Constraint("Perpendicular", 30, 31),
    Sketcher.Constraint("Perpendicular", 31, 32),
    Sketcher.Constraint("Perpendicular", 32, 33),
    Sketcher.Constraint("Perpendicular", 33, 34),
    Sketcher.Constraint("Perpendicular", 34, 35),
    Sketcher.Constraint("Perpendicular", 36, 37),
    Sketcher.Constraint("Perpendicular", 37, 38),
    Sketcher.Constraint("Perpendicular", 38, 39),
    Sketcher.Constraint("Perpendicular", 39, 40),
    Sketcher.Constraint("Perpendicular", 40, 41),
    Sketcher.Constraint("Perpendicular", 41, 42),
    Sketcher.Constraint("Perpendicular", 42, 43),
    Sketcher.Constraint("Perpendicular", 44, 45),
    Sketcher.Constraint("Perpendicular", 45, 46),
    Sketcher.Constraint("Perpendicular", 46, 47),
    Sketcher.Constraint("Perpendicular", 35, 48),
    Sketcher.Constraint("Perpendicular", 48, 49),
    Sketcher.Constraint("Perpendicular", 49, 50),
    Sketcher.Constraint("Perpendicular", 50, 51),
    Sketcher.Constraint("Perpendicular", 51, 52),
    Sketcher.Constraint("Perpendicular", 52, 53),
    Sketcher.Constraint("Perpendicular", 53, 54),
    Sketcher.Constraint("Perpendicular", 54, 55),
    Sketcher.Constraint("Perpendicular", 47, 56),
    Sketcher.Constraint("Perpendicular", 56, 57),
    Sketcher.Constraint("Perpendicular", 57, 58),
    Sketcher.Constraint("Perpendicular", 58, 59),
    Sketcher.Constraint("Vertical", 63, 2, 64, 2),
    Sketcher.Constraint("Vertical", 62, 2, 65, 2),
    Sketcher.Constraint("Equal", 62, 64),
    Sketcher.Constraint("Equal", 10, 16),
    Sketcher.Constraint("Equal", 11, 17),
    Sketcher.Constraint("Equal", 19, 20),
    Sketcher.Constraint("Equal", 18, 21),
    Sketcher.Constraint("Equal", 23, 24),
    Sketcher.Constraint("Equal", 22, 25),
    Sketcher.Constraint("Equal", 26, 28),
    Sketcher.Constraint("Equal", 27, 29),
    Sketcher.Constraint("Equal", 30, 32),
    Sketcher.Constraint("Equal", 31, 33),
    Sketcher.Constraint("Equal", 34, 36),
    Sketcher.Constraint("Equal", 35, 37),
    Sketcher.Constraint("Equal", 38, 40),
    Sketcher.Constraint("Equal", 39, 41),
    Sketcher.Constraint("Equal", 43, 44),
    Sketcher.Constraint("Equal", 42, 45),
    Sketcher.Constraint("Equal", 47, 48),
    Sketcher.Constraint("Equal", 46, 49),
    Sketcher.Constraint("Equal", 50, 52),
    Sketcher.Constraint("Equal", 51, 53),
    Sketcher.Constraint("Equal", 55, 56),
    Sketcher.Constraint("Equal", 54, 57),
    Sketcher.Constraint("Diameter", 0, Q("0.16 in")),
    Sketcher.Constraint("DistanceY", -1, 1, 1, 3, Q("10 in")),
    Sketcher.Constraint("Distance", 12, Q("0.57 in")),
    Sketcher.Constraint("Diameter", 3, Q("3.2 mm")),
    Sketcher.Constraint("DistanceX", 61, 1, 61, 2, Q("0.125 in")),
    Sketcher.Constraint("DistanceY", 60, 2, 60, 1, Q("0.0625 in")),
    Sketcher.Constraint("DistanceX", -1, 1, 1, 3, Q("5.75 in")),
    Sketcher.Constraint("Distance", 8, Q("0.0625 in")),
    Sketcher.Constraint("Distance", 9, Q("0.125 in")),
    Sketcher.Constraint("DistanceX", -1, 1, 0, 3, Q("4.4375 in")),
    Sketcher.Constraint("DistanceY", -1, 1, 0, 3, Q("7.1875 in")),
    Sketcher.Constraint("Distance", 13, Q("2 mm")),
    Sketcher.Constraint("DistanceX", -1, 1, 3, 3, Q("145.425402 mm")),
    Sketcher.Constraint("DistanceY", -1, 1, 5, 3, Q("116.150199 mm")),
    Sketcher.Constraint("DistanceX", -1, 1, 9, 2, Q("177.728899 mm")),
    Sketcher.Constraint("DistanceY", -1, 1, 23, 2, Q("279.780102 mm")),
    Sketcher.Constraint("DistanceY", -1, 1, 44, 2, Q("133.440401 mm")),
    Sketcher.Constraint("DistanceY", -1, 1, 4, 3, Q("227.898539 mm")),
    Sketcher.Constraint("DistanceX", -1, 1, 10, 2, Q("179.240392 mm")),
    Sketcher.Constraint("DistanceY", -1, 1, 10, 2, Q("242.969269 mm")),
    Sketcher.Constraint("DistanceX", -1, 1, 12, 2, Q("153.93808 mm")),
    Sketcher.Constraint("DistanceY", -1, 1, 14, 2, Q("286.612482 mm")),
    Sketcher.Constraint("DistanceX", -1, 1, 15, 2, Q("160.502231 mm")),
    Sketcher.Constraint("DistanceY", -1, 1, 16, 2, Q("250.316141 mm")),
    Sketcher.Constraint("DistanceX", -1, 1, 18, 2, Q("199.638971 mm")),
    Sketcher.Constraint("DistanceX", -1, 1, 24, 2, Q("153.06991 mm")),
    Sketcher.Constraint("DistanceY", -1, 1, 28, 2, Q("234.749681 mm")),
    Sketcher.Constraint("DistanceX", -1, 1, 33, 2, Q("208.990182 mm")),
    Sketcher.Constraint("DistanceX", -1, 1, 36, 2, Q("210.235229 mm")),
    Sketcher.Constraint("DistanceX", -1, 1, 38, 2, Q("213.347542 mm")),
    Sketcher.Constraint("DistanceX", -1, 1, 40, 2, Q("205.013971 mm")),
    Sketcher.Constraint("DistanceY", -1, 1, 40, 2, Q("288.371538 mm")),
    Sketcher.Constraint("DistanceX", -1, 1, 46, 2, Q("134.681239 mm")),
    Sketcher.Constraint("DistanceY", -1, 1, 47, 2, Q("136.102011 mm")),
    Sketcher.Constraint("DistanceX", -1, 1, 49, 2, Q("158.082551 mm")),
    Sketcher.Constraint("DistanceY", -1, 1, 51, 2, Q("200.119678 mm")),
    Sketcher.Constraint("DistanceY", -1, 1, 52, 2, Q("194.361651 mm")),
    Sketcher.Constraint("DistanceX", -1, 1, 53, 2, Q("167.98727 mm")),
    Sketcher.Constraint("DistanceX", -1, 1, 56, 2, Q("140.404682 mm")),
    Sketcher.Constraint("DistanceY", -1, 1, 56, 2, Q("136.902459 mm")),
    Sketcher.Constraint("DistanceY", -1, 1, 60, 2, Q("80.285171 mm")),
    Sketcher.Constraint("DistanceY", -1, 1, 64, 2, Q("73.935171 mm")),
    Sketcher.Constraint("DistanceX", -1, 1, 2, 3, Q("101.196446 mm")),
    Sketcher.Constraint("DistanceY", -1, 1, 2, 3, Q("159.923143 mm")),
    Sketcher.Constraint("DistanceY", -1, 1, 3, 3, Q("217.737568 mm")),
    Sketcher.Constraint("DistanceX", -1, 1, 4, 3, Q("150.594024 mm")),
    Sketcher.Constraint("DistanceX", -1, 1, 5, 3, Q("108.294003 mm")),
    Sketcher.Constraint("DistanceX", -1, 1, 6, 3, Q("118.454975 mm")),
    Sketcher.Constraint("DistanceY", -1, 1, 6, 3, Q("110.981576 mm")),
    Sketcher.Constraint("DistanceX", -1, 1, 20, 2, Q("163.420402 mm")),
    Sketcher.Constraint("DistanceY", -1, 1, 24, 2, Q("264.995443 mm")),
    Sketcher.Constraint("DistanceX", -1, 1, 28, 2, Q("201.915383 mm")),
    Sketcher.Constraint("DistanceY", -1, 1, 32, 2, Q("228.320994 mm")),
    Sketcher.Constraint("DistanceY", -1, 1, 36, 2, Q("291.985535 mm")),
    Sketcher.Constraint("DistanceX", -1, 1, 60, 2, Q("117.248548 mm")),
])
pocket9 = doc.addObject("PartDesign::Pocket", "Pocket008")
body.addObject(pocket9)
pocket9.Profile = sketch10
pocket9.Type = "ThroughAll"

sketch11 = doc.addObject("Sketcher::SketchObject", "Sketch010")
body.addObject(sketch11)
sketch11.AttachmentSupport = (doc.XY_Plane, [""])
sketch11.MapMode = "FlatFace"
sketch11.AttachmentOffset = App.Placement(Vector(0, 0, 0.125 * 25.4), App.Rotation())
sketch11.addGeometry([
    Part.Circle(Vector(189.602197, 69.980637, 0), Vector(0, 0, 1), 1.27),
    Part.Circle(Vector(201.708862, 70.509225, 0), Vector(0, 0, 1), 1.27),
    Part.Circle(Vector(159.793548, 93.98, 0), Vector(0, 0, 1), 2.032),
    Part.Circle(Vector(134.393548, 93.98, 0), Vector(0, 0, 1), 2.032),
    Part.Circle(Vector(178.721645, 148.532439, 0), Vector(0, 0, 1), 1.27),
    Part.Circle(Vector(189.62263, 145.095371, 0), Vector(0, 0, 1), 1.27),
    Part.Circle(Vector(128.361048, 6.6675, 0), Vector(0, 0, 1), 2.032),
    Part.Circle(Vector(165.826048, 6.6675, 0), Vector(0, 0, 1), 2.032),
    Part.LineSegment(Vector(199.24337, 101.699014, 0), Vector(186.844411, 98.950231, 0)),
    Part.LineSegment(Vector(186.844411, 98.950231, 0), Vector(190.967586, 80.351792, 0)),
    Part.LineSegment(Vector(190.967586, 80.351792, 0), Vector(203.366545, 83.100575, 0)),
    Part.LineSegment(Vector(203.366545, 83.100575, 0), Vector(199.24337, 101.699014, 0)),
], False)
sketch11.addConstraint([
    Sketcher.Constraint("Coincident", 8, 2, 9, 1),
    Sketcher.Constraint("Coincident", 9, 2, 10, 1),
    Sketcher.Constraint("Coincident", 10, 2, 11, 1),
    Sketcher.Constraint("Coincident", 11, 2, 8, 1),
    Sketcher.Constraint("Equal", 0, 1),
    Sketcher.Constraint("Equal", 2, 3),
    Sketcher.Constraint("Equal", 1, 4),
    Sketcher.Constraint("Equal", 4, 5),
    Sketcher.Constraint("Equal", 3, 6),
    Sketcher.Constraint("Equal", 6, 7),
    Sketcher.Constraint("Perpendicular", 8, 9),
    Sketcher.Constraint("Perpendicular", 9, 10),
    Sketcher.Constraint("Perpendicular", 10, 11),
    Sketcher.Constraint("Horizontal", 2, 3, 3, 3),
    Sketcher.Constraint("Horizontal", 6, 3, 7, 3),
    Sketcher.Constraint("Diameter", 0, Q("0.1 in")),
    Sketcher.Constraint("Diameter", 2, Q("0.16 in")),
    Sketcher.Constraint("DistanceX", 3, 3, 2, 3, Q("1 in")),
    Sketcher.Constraint("Distance", 8, Q("0.5 in")),
    Sketcher.Constraint("DistanceY", -1, 1, 2, 3, Q("3.7 in")),
    Sketcher.Constraint("Angle", 8, Q("-167.5 deg")),
    Sketcher.Constraint("Distance", 9, Q("0.75 in")),
    Sketcher.Constraint("DistanceY", 6, 3, 3, 3, Q("3.4375 in")),
    Sketcher.Constraint("DistanceX", 6, 3, 7, 3, Q("1.475 in")),
    Sketcher.Constraint("DistanceX", 6, 3, 3, 3, Q("0.2375 in")),
    Sketcher.Constraint("DistanceY", 0, 3, 4, 3, Q("78.551802 mm")),
    Sketcher.Constraint("DistanceY", -1, 1, 4, 3, Q("148.532439 mm")),
    Sketcher.Constraint("DistanceX", -1, 1, 5, 3, Q("189.62263 mm")),
    Sketcher.Constraint("DistanceY", -1, 1, 5, 3, Q("145.095371 mm")),
    Sketcher.Constraint("DistanceX", -1, 1, 8, 2, Q("186.844411 mm")),
    Sketcher.Constraint("DistanceY", -1, 1, 8, 2, Q("98.950231 mm")),
    Sketcher.Constraint("DistanceY", 0, 3, 1, 3, Q("0.528588 mm")),
    Sketcher.Constraint("DistanceX", 2, 3, 0, 3, Q("29.808649 mm")),
    Sketcher.Constraint("DistanceX", 2, 3, 5, 3, Q("29.829082 mm")),
    Sketcher.Constraint("DistanceX", 8, 2, 1, 3, Q("14.864451 mm")),
    Sketcher.Constraint("DistanceX", -1, 1, 4, 3, Q("178.721645 mm")),
])
pocket10 = doc.addObject("PartDesign::Pocket", "Pocket009")
body.addObject(pocket10)
pocket10.Profile = sketch11
pocket10.Type = "ThroughAll"
pocket10.Midplane = True
doc.recompute()

fillet3 = doc.addObject("PartDesign::Fillet", "Fillet002")
body.addObject(fillet3)
fillet3.Base = (pocket10, edges_at(pocket10, [
    (199.243, 101.699, 1.587),
    (203.367, 83.101, 1.587),
    (190.968, 80.352, 1.587),
    (186.844, 98.95, 1.587),
]))
fillet3.Radius = Q("0.1 in")

sketch12 = doc.addObject("Sketcher::SketchObject", "Sketch011")
body.addObject(sketch12)
sketch12.AttachmentSupport = (doc.XY_Plane, [""])
sketch12.MapMode = "FlatFace"
sketch12.AttachmentOffset = App.Placement(Vector(0, 0, 0.125 * 25.4), App.Rotation())
sketch12.addGeometry(Part.Circle(Vector(193.04, 58.801, 0), Vector(0, 0, 1), 4.7625), False)
sketch12.addConstraint([
    Sketcher.Constraint("Diameter", 0, Q("0.375 in")),
    Sketcher.Constraint("DistanceX", -1, 1, 0, 3, Q("7.6 in")),
    Sketcher.Constraint("DistanceY", -1, 1, 0, 3, Q("2.315 in")),
])
pocket11 = doc.addObject("PartDesign::Pocket", "Pocket010")
body.addObject(pocket11)
pocket11.Profile = sketch12
pocket11.Type = "ThroughAll"

doc.recompute()
